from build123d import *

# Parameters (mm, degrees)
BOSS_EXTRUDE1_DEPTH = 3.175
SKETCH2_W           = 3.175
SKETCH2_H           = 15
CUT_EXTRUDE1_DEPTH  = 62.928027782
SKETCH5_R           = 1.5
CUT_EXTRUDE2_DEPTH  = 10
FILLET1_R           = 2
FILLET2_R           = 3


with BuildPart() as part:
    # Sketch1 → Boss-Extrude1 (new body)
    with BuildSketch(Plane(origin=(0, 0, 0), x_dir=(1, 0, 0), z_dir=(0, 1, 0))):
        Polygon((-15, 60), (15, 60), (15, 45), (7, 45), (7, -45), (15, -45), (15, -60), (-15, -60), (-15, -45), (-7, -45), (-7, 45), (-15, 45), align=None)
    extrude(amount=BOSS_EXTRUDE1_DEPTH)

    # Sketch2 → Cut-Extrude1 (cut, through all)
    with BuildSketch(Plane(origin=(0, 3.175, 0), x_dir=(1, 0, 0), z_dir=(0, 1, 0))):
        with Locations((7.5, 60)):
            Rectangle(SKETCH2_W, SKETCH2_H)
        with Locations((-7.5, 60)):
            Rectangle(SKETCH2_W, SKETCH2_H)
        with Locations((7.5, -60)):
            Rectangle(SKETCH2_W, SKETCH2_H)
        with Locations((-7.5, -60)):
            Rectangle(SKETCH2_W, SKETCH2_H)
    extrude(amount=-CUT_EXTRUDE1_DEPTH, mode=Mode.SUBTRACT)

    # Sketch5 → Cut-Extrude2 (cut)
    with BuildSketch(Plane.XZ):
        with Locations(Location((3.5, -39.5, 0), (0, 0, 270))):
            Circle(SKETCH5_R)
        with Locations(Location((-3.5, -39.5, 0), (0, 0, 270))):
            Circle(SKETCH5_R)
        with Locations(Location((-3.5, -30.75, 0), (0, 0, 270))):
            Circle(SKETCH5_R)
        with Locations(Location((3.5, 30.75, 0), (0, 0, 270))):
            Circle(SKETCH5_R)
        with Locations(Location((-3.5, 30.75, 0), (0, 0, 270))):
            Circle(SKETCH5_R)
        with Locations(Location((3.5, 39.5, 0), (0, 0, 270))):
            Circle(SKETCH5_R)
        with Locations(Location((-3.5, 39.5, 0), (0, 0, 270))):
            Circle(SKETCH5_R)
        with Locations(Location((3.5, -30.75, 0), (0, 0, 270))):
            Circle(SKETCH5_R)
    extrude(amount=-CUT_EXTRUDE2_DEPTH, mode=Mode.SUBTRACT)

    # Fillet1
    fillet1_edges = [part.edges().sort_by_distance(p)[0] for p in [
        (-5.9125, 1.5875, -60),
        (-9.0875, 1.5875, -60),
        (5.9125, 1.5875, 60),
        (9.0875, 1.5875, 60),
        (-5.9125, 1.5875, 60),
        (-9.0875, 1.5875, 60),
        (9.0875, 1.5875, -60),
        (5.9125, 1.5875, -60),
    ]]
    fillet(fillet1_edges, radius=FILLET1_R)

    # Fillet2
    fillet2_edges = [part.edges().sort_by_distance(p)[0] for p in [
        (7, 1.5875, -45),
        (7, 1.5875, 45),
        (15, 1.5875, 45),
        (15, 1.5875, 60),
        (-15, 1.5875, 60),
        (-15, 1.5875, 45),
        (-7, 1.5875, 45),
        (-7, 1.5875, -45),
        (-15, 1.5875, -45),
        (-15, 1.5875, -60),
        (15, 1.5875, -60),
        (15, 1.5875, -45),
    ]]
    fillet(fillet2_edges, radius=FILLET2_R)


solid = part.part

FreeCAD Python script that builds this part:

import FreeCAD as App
import Part
import Sketcher


def edges_at(feature, points):
    """Names of the edges that pass closest to the given points."""
    edges = feature.Shape.Edges
    near = lambda p: min(range(len(edges)), key=lambda i: edges[i].distToShape(Part.Vertex(*p))[0])
    return sorted({f"Edge{near(p) + 1}" for p in points})

doc = App.newDocument("Part")
params = doc.addObject("Spreadsheet::Sheet", "Params")
for row, (alias, value) in enumerate([
    ("sketch1_width", "30 mm"),
    ("sketch1_width2", "8 mm"),
    ("sketch1_height", "15 mm"),
    ("sketch1_height2", "90 mm"),
    ("pad1_length", "3.175 mm"),
    ("sketch2_height", "15 mm"),
    ("sketch3_diameter", "3 mm"),
    ("pocket2_length", "10 mm"),
    ("fillet_radius", "2 mm"),
    ("fillet2_radius", "3 mm"),
], start=1):
    params.set(f"A{row}", alias)
    params.set(f"B{row}", "=" + value)
    params.setAlias(f"B{row}", alias)

body = doc.addObject("PartDesign::Body", "Body")

# Sketch on XZ plane
sketch1 = doc.addObject("Sketcher::SketchObject", "Sketch")
body.addObject(sketch1)
sketch1.AttachmentSupport = (doc.XZ_Plane, [""])
sketch1.MapMode = "FlatFace"
sketch1.addGeometry(Part.LineSegment(App.Vector(15, -60, 0), App.Vector(-15, -60, 0)), False)
sketch1.addGeometry(Part.LineSegment(App.Vector(-15, -60, 0), App.Vector(-15, -45, 0)), False)
sketch1.addGeometry(Part.LineSegment(App.Vector(-15, -45, 0), App.Vector(-7, -45, 0)), False)
sketch1.addGeometry(Part.LineSegment(App.Vector(-7, -45, 0), App.Vector(-7, 45, 0)), False)
sketch1.addGeometry(Part.LineSegment(App.Vector(-7, 45, 0), App.Vector(-15, 45, 0)), False)
sketch1.addGeometry(Part.LineSegment(App.Vector(-15, 45, 0), App.Vector(-15, 60, 0)), False)
sketch1.addGeometry(Part.LineSegment(App.Vector(-15, 60, 0), App.Vector(15, 60, 0)), False)
sketch1.addGeometry(Part.LineSegment(App.Vector(15, 60, 0), App.Vector(15, 45, 0)), False)
sketch1.addGeometry(Part.LineSegment(App.Vector(15, 45, 0), App.Vector(7, 45, 0)), False)
sketch1.addGeometry(Part.LineSegment(App.Vector(7, 45, 0), App.Vector(7, -45, 0)), False)
sketch1.addGeometry(Part.LineSegment(App.Vector(7, -45, 0), App.Vector(15, -45, 0)), False)
sketch1.addGeometry(Part.LineSegment(App.Vector(15, -45, 0), App.Vector(15, -60, 0)), False)
sketch1.addConstraint(Sketcher.Constraint("Coincident", 0, 2, 1, 1))
sketch1.addConstraint(Sketcher.Constraint("Coincident", 1, 2, 2, 1))
sketch1.addConstraint(Sketcher.Constraint("Coincident", 2, 2, 3, 1))
sketch1.addConstraint(Sketcher.Constraint("Coincident", 3, 2, 4, 1))
sketch1.addConstraint(Sketcher.Constraint("Coincident", 4, 2, 5, 1))
sketch1.addConstraint(Sketcher.Constraint("Coincident", 5, 2, 6, 1))
sketch1.addConstraint(Sketcher.Constraint("Coincident", 6, 2, 7, 1))
sketch1.addConstraint(Sketcher.Constraint("Coincident", 7, 2, 8, 1))
sketch1.addConstraint(Sketcher.Constraint("Coincident", 8, 2, 9, 1))
sketch1.addConstraint(Sketcher.Constraint("Coincident", 9, 2, 10, 1))
sketch1.addConstraint(Sketcher.Constraint("Coincident", 10, 2, 11, 1))
sketch1.addConstraint(Sketcher.Constraint("Coincident", 11, 2, 0, 1))
sketch1.addConstraint(Sketcher.Constraint("Horizontal", 0))
sketch1.addConstraint(Sketcher.Constraint("Vertical", 1))
sketch1.addConstraint(Sketcher.Constraint("Horizontal", 2))
sketch1.addConstraint(Sketcher.Constraint("Vertical", 3))
sketch1.addConstraint(Sketcher.Constraint("Horizontal", 4))
sketch1.addConstraint(Sketcher.Constraint("Vertical", 5))
sketch1.addConstraint(Sketcher.Constraint("Horizontal", 6))
sketch1.addConstraint(Sketcher.Constraint("Vertical", 7))
sketch1.addConstraint(Sketcher.Constraint("Horizontal", 8))
sketch1.addConstraint(Sketcher.Constraint("Vertical", 9))
sketch1.addConstraint(Sketcher.Constraint("Horizontal", 10))
sketch1.addConstraint(Sketcher.Constraint("Vertical", 11))
sketch1.addConstraint(Sketcher.Constraint("Symmetric", 0, 2, 6, 2, -1, 1))
sketch1.addConstraint(Sketcher.Constraint("Symmetric", 2, 2, 8, 2, -1, 1))
sketch1.addConstraint(Sketcher.Constraint("Symmetric", 4, 2, 10, 2, -1, 1))
sketch1.addConstraint(Sketcher.Constraint("Symmetric", 4, 2, 7, 2, -2))
sketch1.addConstraint(Sketcher.Constraint("DistanceX", 0, 2, 0, 1, 30.0))
sketch1.addConstraint(Sketcher.Constraint("DistanceX", 2, 1, 2, 2, 8.0))
sketch1.addConstraint(Sketcher.Constraint("DistanceY", 1, 1, 1, 2, 15.0))
sketch1.addConstraint(Sketcher.Constraint("DistanceY", 3, 1, 3, 2, 90.0))
sketch1.setExpression("Constraints[28]", "Params.sketch1_width")
sketch1.setExpression("Constraints[29]", "Params.sketch1_width2")
sketch1.setExpression("Constraints[30]", "Params.sketch1_height")
sketch1.setExpression("Constraints[31]", "Params.sketch1_height2")
pad1 = doc.addObject("PartDesign::Pad", "Pad")
body.addObject(pad1)
pad1.Profile = sketch1
pad1.setExpression("Length", "Params.pad1_length")
pad1.Reversed = True

# Sketch on XZ plane
sketch2 = doc.addObject("Sketcher::SketchObject", "Sketch001")
body.addObject(sketch2)
sketch2.AttachmentSupport = (doc.XZ_Plane, [""])
sketch2.MapMode = "FlatFace"
sketch2.AttachmentOffset = App.Placement(App.Vector(0, 0, -3.175), App.Rotation())
sketch2.addGeometry(Part.LineSegment(App.Vector(5.9, -67.5, 0), App.Vector(5.9, -52.5, 0)), False)
sketch2.addGeometry(Part.LineSegment(App.Vector(5.9, -52.5, 0), App.Vector(9.1, -52.5, 0)), False)
sketch2.addGeometry(Part.LineSegment(App.Vector(9.1, -52.5, 0), App.Vector(9.1, -67.5, 0)), False)
sketch2.addGeometry(Part.LineSegment(App.Vector(9.1, -67.5, 0), App.Vector(5.9, -67.5, 0)), False)
sketch2.addGeometry(Part.LineSegment(App.Vector(-9.1, -67.5, 0), App.Vector(-9.1, -52.5, 0)), False)
sketch2.addGeometry(Part.LineSegment(App.Vector(-9.1, -52.5, 0), App.Vector(-5.9, -52.5, 0)), False)
sketch2.addGeometry(Part.LineSegment(App.Vector(-5.9, -52.5, 0), App.Vector(-5.9, -67.5, 0)), False)
sketch2.addGeometry(Part.LineSegment(App.Vector(-5.9, -67.5, 0), App.Vector(-9.1, -67.5, 0)), False)
sketch2.addGeometry(Part.LineSegment(App.Vector(5.9, 52.5, 0), App.Vector(5.9, 67.5, 0)), False)
sketch2.addGeometry(Part.LineSegment(App.Vector(5.9, 67.5, 0), App.Vector(9.1, 67.5, 0)), False)
sketch2.addGeometry(Part.LineSegment(App.Vector(9.1, 67.5, 0), App.Vector(9.1, 52.5, 0)), False)
sketch2.addGeometry(Part.LineSegment(App.Vector(9.1, 52.5, 0), App.Vector(5.9, 52.5, 0)), False)
sketch2.addGeometry(Part.LineSegment(App.Vector(-9.1, 52.5, 0), App.Vector(-9.1, 67.5, 0)), False)
sketch2.addGeometry(Part.LineSegment(App.Vector(-9.1, 67.5, 0), App.Vector(-5.9, 67.5, 0)), False)
sketch2.addGeometry(Part.LineSegment(App.Vector(-5.9, 67.5, 0), App.Vector(-5.9, 52.5, 0)), False)
sketch2.addGeometry(Part.LineSegment(App.Vector(-5.9, 52.5, 0), App.Vector(-9.1, 52.5, 0)), False)
sketch2.addConstraint(Sketcher.Constraint("Coincident", 0, 2, 1, 1))
sketch2.addConstraint(Sketcher.Constraint("Coincident", 1, 2, 2, 1))
sketch2.addConstraint(Sketcher.Constraint("Coincident", 2, 2, 3, 1))
sketch2.addConstraint(Sketcher.Constraint("Coincident", 3, 2, 0, 1))
sketch2.addConstraint(Sketcher.Constraint("Coincident", 4, 2, 5, 1))
sketch2.addConstraint(Sketcher.Constraint("Coincident", 5, 2, 6, 1))
sketch2.addConstraint(Sketcher.Constraint("Coincident", 6, 2, 7, 1))
sketch2.addConstraint(Sketcher.Constraint("Coincident", 7, 2, 4, 1))
sketch2.addConstraint(Sketcher.Constraint("Coincident", 8, 2, 9, 1))
sketch2.addConstraint(Sketcher.Constraint("Coincident", 9, 2, 10, 1))
sketch2.addConstraint(Sketcher.Constraint("Coincident", 10, 2, 11, 1))
sketch2.addConstraint(Sketcher.Constraint("Coincident", 11, 2, 8, 1))
sketch2.addConstraint(Sketcher.Constraint("Coincident", 12, 2, 13, 1))
sketch2.addConstraint(Sketcher.Constraint("Coincident", 13, 2, 14, 1))
sketch2.addConstraint(Sketcher.Constraint("Coincident", 14, 2, 15, 1))
sketch2.addConstraint(Sketcher.Constraint("Coincident", 15, 2, 12, 1))
sketch2.addConstraint(Sketcher.Constraint("Vertical", 0))
sketch2.addConstraint(Sketcher.Constraint("Horizontal", 1))
sketch2.addConstraint(Sketcher.Constraint("Vertical", 2))
sketch2.addConstraint(Sketcher.Constraint("Horizontal", 3))
sketch2.addConstraint(Sketcher.Constraint("Vertical", 4))
sketch2.addConstraint(Sketcher.Constraint("Horizontal", 5))
sketch2.addConstraint(Sketcher.Constraint("Vertical", 6))
sketch2.addConstraint(Sketcher.Constraint("Horizontal", 7))
sketch2.addConstraint(Sketcher.Constraint("Vertical", 8))
sketch2.addConstraint(Sketcher.Constraint("Horizontal", 9))
sketch2.addConstraint(Sketcher.Constraint("Vertical", 10))
sketch2.addConstraint(Sketcher.Constraint("Horizontal", 11))
sketch2.addConstraint(Sketcher.Constraint("Vertical", 12))
sketch2.addConstraint(Sketcher.Constraint("Horizontal", 13))
sketch2.addConstraint(Sketcher.Constraint("Vertical", 14))
sketch2.addConstraint(Sketcher.Constraint("Horizontal", 15))
sketch2.addConstraint(Sketcher.Constraint("Symmetric", 6, 2, 8, 2, -1, 1))
sketch2.addConstraint(Sketcher.Constraint("Symmetric", 4, 2, 10, 2, -1, 1))
sketch2.addConstraint(Sketcher.Constraint("Symmetric", 2, 2, 12, 2, -1, 1))
sketch2.addConstraint(Sketcher.Constraint("Symmetric", 0, 2, 14, 2, -1, 1))
sketch2.addConstraint(Sketcher.Constraint("Symmetric", 1, 2, 4, 2, -2))
sketch2.addConstraint(Sketcher.Constraint("Symmetric", 3, 2, 6, 2, -2))
sketch2.addConstraint(Sketcher.Constraint("DistanceY", 0, 1, 0, 2, 15.0))
sketch2.addConstraint(Sketcher.Constraint("DistanceX", 4, 2, 0, 2, 15.0))
sketch2.addConstraint(Sketcher.Constraint("DistanceY", 0, 2, 8, 2, 120.0))
sketch2.addConstraint(Sketcher.Constraint("DistanceX", 1, 1, 1, 2, 3.175))
sketch2.setExpression("Constraints[38]", "Params.sketch2_height")
pocket1 = doc.addObject("PartDesign::Pocket", "Pocket")
body.addObject(pocket1)
pocket1.Profile = sketch2
pocket1.Type = "ThroughAll"
pocket1.Reversed = True

# Sketch on XZ plane
sketch3 = doc.addObject("Sketcher::SketchObject", "Sketch002")
body.addObject(sketch3)
sketch3.AttachmentSupport = (doc.XZ_Plane, [""])
sketch3.MapMode = "FlatFace"
sketch3.addGeometry(Part.Circle(App.Vector(3.5, -39.5, 0), App.Vector(0, 0, 1), 1.5), False)
sketch3.addGeometry(Part.Circle(App.Vector(-3.5, -39.5, 0), App.Vector(0, 0, 1), 1.5), False)
sketch3.addGeometry(Part.Circle(App.Vector(-3.5, -30.8, 0), App.Vector(0, 0, 1), 1.5), False)
sketch3.addGeometry(Part.Circle(App.Vector(3.5, 30.8, 0), App.Vector(0, 0, 1), 1.5), False)
sketch3.addGeometry(Part.Circle(App.Vector(-3.5, 30.8, 0), App.Vector(0, 0, 1), 1.5), False)
sketch3.addGeometry(Part.Circle(App.Vector(3.5, 39.5, 0), App.Vector(0, 0, 1), 1.5), False)
sketch3.addGeometry(Part.Circle(App.Vector(-3.5, 39.5, 0), App.Vector(0, 0, 1), 1.5), False)
sketch3.addGeometry(Part.Circle(App.Vector(3.5, -30.8, 0), App.Vector(0, 0, 1), 1.5), False)
sketch3.addConstraint(Sketcher.Constraint("Equal", 0, 1))
sketch3.addConstraint(Sketcher.Constraint("Equal", 1, 2))
sketch3.addConstraint(Sketcher.Constraint("Equal", 2, 3))
sketch3.addConstraint(Sketcher.Constraint("Equal", 3, 4))
sketch3.addConstraint(Sketcher.Constraint("Equal", 4, 5))
sketch3.addConstraint(Sketcher.Constraint("Equal", 5, 6))
sketch3.addConstraint(Sketcher.Constraint("Equal", 6, 7))
sketch3.addConstraint(Sketcher.Constraint("Symmetric", 2, 3, 3, 3, -1, 1))
sketch3.addConstraint(Sketcher.Constraint("Symmetric", 1, 3, 5, 3, -1, 1))
sketch3.addConstraint(Sketcher.Constraint("Symmetric", 0, 3, 6, 3, -1, 1))
sketch3.addConstraint(Sketcher.Constraint("Symmetric", 4, 3, 7, 3, -1, 1))
sketch3.addConstraint(Sketcher.Constraint("Symmetric", 0, 3, 1, 3, -2))
sketch3.addConstraint(Sketcher.Constraint("Symmetric", 3, 3, 4, 3, -2))
sketch3.addConstraint(Sketcher.Constraint("Vertical", 1, 3, 2, 3))
sketch3.addConstraint(Sketcher.Constraint("Diameter", 0, 3.0))
sketch3.addConstraint(Sketcher.Constraint("DistanceX", 1, 3, 0, 3, 7.0))
sketch3.addConstraint(Sketcher.Constraint("DistanceY", 0, 3, 5, 3, 79.0))
sketch3.addConstraint(Sketcher.Constraint("DistanceY", 2, 3, 3, 3, 61.5))
sketch3.setExpression("Constraints[14]", "Params.sketch3_diameter")
pocket2 = doc.addObject("PartDesign::Pocket", "Pocket001")
body.addObject(pocket2)
pocket2.Profile = sketch3
pocket2.setExpression("Length", "Params.pocket2_length")
doc.recompute()

fillet = doc.addObject("PartDesign::Fillet", "Fillet")
body.addObject(fillet)
fillet.Base = (pocket2, edges_at(pocket2, [
    (-5.912, 1.587, -60),
    (-9.088, 1.587, -60),
    (5.912, 1.587, 60),
    (9.088, 1.587, 60),
    (-5.912, 1.587, 60),
    (-9.088, 1.587, 60),
    (9.088, 1.587, -60),
    (5.912, 1.587, -60),
]))
fillet.setExpression("Radius", "Params.fillet_radius")
doc.recompute()

fillet2 = doc.addObject("PartDesign::Fillet", "Fillet001")
body.addObject(fillet2)
fillet2.Base = (fillet, edges_at(fillet, [
    (7, 1.587, -45),
    (7, 1.587, 45),
    (15, 1.587, 45),
    (15, 1.587, 60),
    (-15, 1.587, 60),
    (-15, 1.587, 45),
    (-7, 1.587, 45),
    (-7, 1.587, -45),
    (-15, 1.587, -45),
    (-15, 1.587, -60),
    (15, 1.587, -60),
    (15, 1.587, -45),
]))
fillet2.setExpression("Radius", "Params.fillet2_radius")

doc.recompute()
